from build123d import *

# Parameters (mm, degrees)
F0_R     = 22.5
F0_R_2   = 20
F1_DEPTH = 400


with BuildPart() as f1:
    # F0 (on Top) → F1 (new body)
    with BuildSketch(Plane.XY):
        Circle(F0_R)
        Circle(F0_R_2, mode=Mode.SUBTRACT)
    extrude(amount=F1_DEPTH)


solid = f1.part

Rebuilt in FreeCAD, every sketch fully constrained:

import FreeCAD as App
import Part
import Sketcher
Q = App.Units.Quantity

doc = App.newDocument("Part")
body = doc.addObject("PartDesign::Body", "Body")

# Sketch on XY plane
sketch1 = body.newObject("Sketcher::SketchObject", "Sketch")
sketch1.AttachmentSupport = (doc.getObject("XY_Plane"), [""])
sketch1.MapMode = "FlatFace"
sketch1.addGeometry([
    Part.Circle(App.Vector(0, 0, 0), App.Vector(0, 0, 1), 22),
    Part.Circle(App.Vector(0, 0, 0), App.Vector(0, 0, 1), 20),
], False)
sketch1.addConstraint([
    Sketcher.Constraint("Coincident", 0, 3, -1, 1),
    Sketcher.Constraint("Coincident", 1, 3, -1, 1),
    Sketcher.Constraint("Diameter", 0, Q("45 mm")),
    Sketcher.Constraint("Diameter", 1, Q("40 mm")),
])
pad1 = body.newObject("PartDesign::Pad", "Pad")
pad1.Profile = sketch1
pad1.Length = 400

doc.recompute()
